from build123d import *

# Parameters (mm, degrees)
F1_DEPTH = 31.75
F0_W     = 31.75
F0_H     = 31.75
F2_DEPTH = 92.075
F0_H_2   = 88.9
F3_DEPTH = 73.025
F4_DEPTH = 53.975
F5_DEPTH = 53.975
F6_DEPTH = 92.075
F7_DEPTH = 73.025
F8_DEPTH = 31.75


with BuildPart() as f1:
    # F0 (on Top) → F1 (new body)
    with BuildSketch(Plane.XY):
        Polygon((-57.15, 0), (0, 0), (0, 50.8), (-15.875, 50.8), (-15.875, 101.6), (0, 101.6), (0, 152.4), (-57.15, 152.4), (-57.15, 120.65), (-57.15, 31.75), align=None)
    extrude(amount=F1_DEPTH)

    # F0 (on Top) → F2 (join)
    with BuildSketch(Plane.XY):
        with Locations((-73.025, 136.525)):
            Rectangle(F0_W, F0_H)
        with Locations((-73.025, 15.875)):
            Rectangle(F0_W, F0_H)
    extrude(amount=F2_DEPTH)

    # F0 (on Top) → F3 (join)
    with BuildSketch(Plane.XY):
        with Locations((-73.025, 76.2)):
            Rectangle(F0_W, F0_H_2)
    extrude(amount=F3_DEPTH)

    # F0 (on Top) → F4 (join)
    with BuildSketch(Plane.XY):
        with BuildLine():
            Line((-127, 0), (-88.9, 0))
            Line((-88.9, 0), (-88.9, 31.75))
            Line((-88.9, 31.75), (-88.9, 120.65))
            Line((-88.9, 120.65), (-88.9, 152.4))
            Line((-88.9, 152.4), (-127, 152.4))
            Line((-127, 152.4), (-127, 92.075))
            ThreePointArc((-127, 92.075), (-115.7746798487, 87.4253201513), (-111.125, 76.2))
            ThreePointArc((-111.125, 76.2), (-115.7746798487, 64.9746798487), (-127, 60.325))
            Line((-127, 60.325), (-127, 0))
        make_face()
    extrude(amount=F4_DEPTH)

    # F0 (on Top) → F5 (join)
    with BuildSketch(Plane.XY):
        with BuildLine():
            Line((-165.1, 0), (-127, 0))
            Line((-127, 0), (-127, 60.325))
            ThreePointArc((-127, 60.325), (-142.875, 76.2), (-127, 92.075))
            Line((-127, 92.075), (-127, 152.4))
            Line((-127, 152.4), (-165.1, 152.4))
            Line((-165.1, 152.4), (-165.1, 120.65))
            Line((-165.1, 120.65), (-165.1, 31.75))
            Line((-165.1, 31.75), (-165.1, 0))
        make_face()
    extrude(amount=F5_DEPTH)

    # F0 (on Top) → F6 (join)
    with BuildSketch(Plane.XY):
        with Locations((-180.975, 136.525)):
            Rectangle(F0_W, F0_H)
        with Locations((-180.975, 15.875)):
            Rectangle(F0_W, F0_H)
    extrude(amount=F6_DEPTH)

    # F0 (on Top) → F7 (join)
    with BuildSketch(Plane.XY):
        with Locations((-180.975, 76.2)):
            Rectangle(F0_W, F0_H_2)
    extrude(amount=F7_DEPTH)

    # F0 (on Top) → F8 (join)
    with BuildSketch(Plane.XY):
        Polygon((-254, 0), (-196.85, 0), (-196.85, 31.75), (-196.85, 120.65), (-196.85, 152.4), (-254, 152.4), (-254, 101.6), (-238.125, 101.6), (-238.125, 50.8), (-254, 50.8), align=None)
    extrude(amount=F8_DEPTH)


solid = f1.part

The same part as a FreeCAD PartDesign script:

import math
import FreeCAD as App
import Part
import Sketcher
from FreeCAD import Vector
Q = App.Units.Quantity

doc = App.newDocument("Part")
body = doc.addObject("PartDesign::Body", "Body")

sketch1 = body.newObject("Sketcher::SketchObject", "Sketch")
sketch1.AttachmentSupport = (doc.getObject("XY_Plane"), [""])
sketch1.MapMode = "FlatFace"
sketch1.addGeometry([
    Part.LineSegment(Vector(-57, 0, 0), Vector(0, 0, 0)),
    Part.LineSegment(Vector(0, 0, 0), Vector(0, 51, 0)),
    Part.LineSegment(Vector(0, 51, 0), Vector(-16, 51, 0)),
    Part.LineSegment(Vector(-16, 51, 0), Vector(-16, 102, 0)),
    Part.LineSegment(Vector(-16, 102, 0), Vector(0, 102, 0)),
    Part.LineSegment(Vector(0, 102, 0), Vector(0, 152, 0)),
    Part.LineSegment(Vector(0, 152, 0), Vector(-57, 152, 0)),
    Part.LineSegment(Vector(-57, 152, 0), Vector(-57, 0, 0)),
], False)
sketch1.addConstraint([
    Sketcher.Constraint("Coincident", 0, 2, 1, 1),
    Sketcher.Constraint("Coincident", 1, 2, 2, 1),
    Sketcher.Constraint("Coincident", 2, 2, 3, 1),
    Sketcher.Constraint("Coincident", 3, 2, 4, 1),
    Sketcher.Constraint("Coincident", 4, 2, 5, 1),
    Sketcher.Constraint("Coincident", 5, 2, 6, 1),
    Sketcher.Constraint("Coincident", 6, 2, 7, 1),
    Sketcher.Constraint("Coincident", 7, 2, 0, 1),
    Sketcher.Constraint("Horizontal", 0),
    Sketcher.Constraint("Vertical", 1),
    Sketcher.Constraint("Horizontal", 2),
    Sketcher.Constraint("Vertical", 3),
    Sketcher.Constraint("Horizontal", 4),
    Sketcher.Constraint("Vertical", 5),
    Sketcher.Constraint("Horizontal", 6),
    Sketcher.Constraint("Vertical", 7),
    Sketcher.Constraint("Coincident", 0, 2, -1, 1),
    Sketcher.Constraint("PointOnObject", 4, 2, -2),
    Sketcher.Constraint("Equal", 1, 3),
    Sketcher.Constraint("Equal", 3, 5),
    Sketcher.Constraint("DistanceY", 1, 1, 1, 2, Q("2 in")),
    Sketcher.Constraint("DistanceX", 0, 1, 0, 2, Q("2.25 in")),
    Sketcher.Constraint("DistanceX", 2, 2, 2, 1, Q("0.625 in")),
])
pad1 = body.newObject("PartDesign::Pad", "Pad")
pad1.Profile = sketch1
pad1.Length = Q("1.25 in")

sketch2 = body.newObject("Sketcher::SketchObject", "Sketch001")
sketch2.AttachmentSupport = (doc.getObject("XY_Plane"), [""])
sketch2.MapMode = "FlatFace"
sketch2.addGeometry([
    Part.LineSegment(Vector(-89, 152, 0), Vector(-89, 121, 0)),
    Part.LineSegment(Vector(-89, 121, 0), Vector(-57, 121, 0)),
    Part.LineSegment(Vector(-57, 121, 0), Vector(-57, 152, 0)),
    Part.LineSegment(Vector(-57, 152, 0), Vector(-89, 152, 0)),
    Part.LineSegment(Vector(-89, 32, 0), Vector(-89, 0, 0)),
    Part.LineSegment(Vector(-89, 0, 0), Vector(-57, 0, 0)),
    Part.LineSegment(Vector(-57, 0, 0), Vector(-57, 32, 0)),
    Part.LineSegment(Vector(-57, 32, 0), Vector(-89, 32, 0)),
], False)
sketch2.addConstraint([
    Sketcher.Constraint("Coincident", 0, 2, 1, 1),
    Sketcher.Constraint("Coincident", 1, 2, 2, 1),
    Sketcher.Constraint("Coincident", 2, 2, 3, 1),
    Sketcher.Constraint("Coincident", 3, 2, 0, 1),
    Sketcher.Constraint("Coincident", 4, 2, 5, 1),
    Sketcher.Constraint("Coincident", 5, 2, 6, 1),
    Sketcher.Constraint("Coincident", 6, 2, 7, 1),
    Sketcher.Constraint("Coincident", 7, 2, 4, 1),
    Sketcher.Constraint("Vertical", 0),
    Sketcher.Constraint("Horizontal", 1),
    Sketcher.Constraint("Vertical", 2),
    Sketcher.Constraint("Horizontal", 3),
    Sketcher.Constraint("Vertical", 4),
    Sketcher.Constraint("Horizontal", 5),
    Sketcher.Constraint("Vertical", 6),
    Sketcher.Constraint("Horizontal", 7),
    Sketcher.Constraint("PointOnObject", 4, 2, -1),
    Sketcher.Constraint("Vertical", 3, 2, 4, 2),
    Sketcher.Constraint("Vertical", 2, 2, 5, 2),
    Sketcher.Constraint("Equal", 7, 0),
    Sketcher.Constraint("Equal", 2, 4),
    Sketcher.Constraint("DistanceY", -1, 1, 2, 2, Q("6 in")),
    Sketcher.Constraint("DistanceX", 1, 1, 1, 2, Q("1.25 in")),
    Sketcher.Constraint("DistanceX", 0, 2, -1, 1, Q("3.5 in")),
])
pad2 = body.newObject("PartDesign::Pad", "Pad001")
pad2.Profile = sketch2
pad2.Length = Q("3.625 in")

sketch3 = body.newObject("Sketcher::SketchObject", "Sketch002")
sketch3.AttachmentSupport = (doc.getObject("XY_Plane"), [""])
sketch3.MapMode = "FlatFace"
sketch3.addGeometry([
    Part.LineSegment(Vector(-89, 121, 0), Vector(-89, 32, 0)),
    Part.LineSegment(Vector(-89, 32, 0), Vector(-57, 32, 0)),
    Part.LineSegment(Vector(-57, 32, 0), Vector(-57, 121, 0)),
    Part.LineSegment(Vector(-57, 121, 0), Vector(-89, 121, 0)),
], False)
sketch3.addConstraint([
    Sketcher.Constraint("Coincident", 0, 2, 1, 1),
    Sketcher.Constraint("Coincident", 1, 2, 2, 1),
    Sketcher.Constraint("Coincident", 2, 2, 3, 1),
    Sketcher.Constraint("Coincident", 3, 2, 0, 1),
    Sketcher.Constraint("Vertical", 0),
    Sketcher.Constraint("Horizontal", 1),
    Sketcher.Constraint("Vertical", 2),
    Sketcher.Constraint("Horizontal", 3),
    Sketcher.Constraint("DistanceY", 0, 2, 0, 1, Q("3.5 in")),
    Sketcher.Constraint("DistanceX", 1, 1, 1, 2, Q("1.25 in")),
    Sketcher.Constraint("DistanceX", 0, 2, -1, 1, Q("3.5 in")),
    Sketcher.Constraint("DistanceY", -1, 1, 0, 2, Q("1.25 in")),
])
pad3 = body.newObject("PartDesign::Pad", "Pad002")
pad3.Profile = sketch3
pad3.Length = Q("2.875 in")

sketch4 = body.newObject("Sketcher::SketchObject", "Sketch003")
sketch4.AttachmentSupport = (doc.getObject("XY_Plane"), [""])
sketch4.MapMode = "FlatFace"
sketch4.addGeometry([
    Part.LineSegment(Vector(-127, 0, 0), Vector(-89, 0, 0)),
    Part.LineSegment(Vector(-89, 0, 0), Vector(-89, 152, 0)),
    Part.LineSegment(Vector(-89, 152, 0), Vector(-127, 152, 0)),
    Part.LineSegment(Vector(-127, 152, 0), Vector(-127, 92, 0)),
    Part.ArcOfCircle(Part.Circle(Vector(-127, 76, 0), Vector(0, 0, 1), 16), math.radians(0), math.radians(90)),
    Part.ArcOfCircle(Part.Circle(Vector(-127, 76, 0), Vector(0, 0, 1), 16), math.radians(-90), math.radians(0)),
    Part.LineSegment(Vector(-127, 60, 0), Vector(-127, 0, 0)),
], False)
sketch4.addConstraint([
    Sketcher.Constraint("Coincident", 0, 2, 1, 1),
    Sketcher.Constraint("Coincident", 1, 2, 2, 1),
    Sketcher.Constraint("Coincident", 2, 2, 3, 1),
    Sketcher.Constraint("Coincident", 3, 2, 4, 2),
    Sketcher.Constraint("Tangent", 4, 1, 5, 2),
    Sketcher.Constraint("Coincident", 5, 1, 6, 1),
    Sketcher.Constraint("Coincident", 6, 2, 0, 1),
    Sketcher.Constraint("Horizontal", 0),
    Sketcher.Constraint("Vertical", 1),
    Sketcher.Constraint("Horizontal", 2),
    Sketcher.Constraint("Vertical", 3),
    Sketcher.Constraint("Vertical", 6),
    Sketcher.Constraint("Equal", 4, 5),
    Sketcher.Constraint("PointOnObject", 0, 2, -1),
    Sketcher.Constraint("Horizontal", 5, 3, 4, 1),
    Sketcher.Constraint("Vertical", 5, 3, 2, 2),
    Sketcher.Constraint("Vertical", 3, 2, 5, 1),
    Sketcher.Constraint("Equal", 3, 6),
    Sketcher.Constraint("DistanceY", 1, 1, 1, 2, Q("6 in")),
    Sketcher.Constraint("DistanceX", 0, 1, 0, 2, Q("1.5 in")),
    Sketcher.Constraint("DistanceX", 4, 3, -1, 1, Q("5 in")),
    Sketcher.Constraint("Radius", 4, Q("0.625 in")),
])
pad4 = body.newObject("PartDesign::Pad", "Pad003")
pad4.Profile = sketch4
pad4.Length = Q("2.125 in")

sketch5 = body.newObject("Sketcher::SketchObject", "Sketch004")
sketch5.AttachmentSupport = (doc.getObject("XY_Plane"), [""])
sketch5.MapMode = "FlatFace"
sketch5.addGeometry([
    Part.LineSegment(Vector(-165, 0, 0), Vector(-127, 0, 0)),
    Part.LineSegment(Vector(-127, 0, 0), Vector(-127, 60, 0)),
    Part.ArcOfCircle(Part.Circle(Vector(-127, 76, 0), Vector(0, 0, 1), 16), math.radians(90), math.radians(270)),
    Part.LineSegment(Vector(-127, 92, 0), Vector(-127, 152, 0)),
    Part.LineSegment(Vector(-127, 152, 0), Vector(-165, 152, 0)),
    Part.LineSegment(Vector(-165, 152, 0), Vector(-165, 0, 0)),
], False)
sketch5.addConstraint([
    Sketcher.Constraint("Coincident", 0, 2, 1, 1),
    Sketcher.Constraint("Coincident", 1, 2, 2, 2),
    Sketcher.Constraint("Coincident", 2, 1, 3, 1),
    Sketcher.Constraint("Coincident", 3, 2, 4, 1),
    Sketcher.Constraint("Coincident", 4, 2, 5, 1),
    Sketcher.Constraint("Coincident", 5, 2, 0, 1),
    Sketcher.Constraint("Horizontal", 0),
    Sketcher.Constraint("Vertical", 1),
    Sketcher.Constraint("Vertical", 3),
    Sketcher.Constraint("Horizontal", 4),
    Sketcher.Constraint("Vertical", 5),
    Sketcher.Constraint("PointOnObject", 0, 2, -1),
    Sketcher.Constraint("Vertical", 2, 3, 0, 2),
    Sketcher.Constraint("Vertical", 1, 2, 2, 1),
    Sketcher.Constraint("Equal", 1, 3),
    Sketcher.Constraint("DistanceY", 5, 2, 5, 1, Q("6 in")),
    Sketcher.Constraint("DistanceX", 0, 1, 0, 2, Q("1.5 in")),
    Sketcher.Constraint("DistanceX", 2, 3, -1, 1, Q("5 in")),
    Sketcher.Constraint("Radius", 2, Q("0.625 in")),
])
pad5 = body.newObject("PartDesign::Pad", "Pad004")
pad5.Profile = sketch5
pad5.Length = Q("2.125 in")

sketch6 = body.newObject("Sketcher::SketchObject", "Sketch005")
sketch6.AttachmentSupport = (doc.getObject("XY_Plane"), [""])
sketch6.MapMode = "FlatFace"
sketch6.addGeometry([
    Part.LineSegment(Vector(-197, 152, 0), Vector(-197, 121, 0)),
    Part.LineSegment(Vector(-197, 121, 0), Vector(-165, 121, 0)),
    Part.LineSegment(Vector(-165, 121, 0), Vector(-165, 152, 0)),
    Part.LineSegment(Vector(-165, 152, 0), Vector(-197, 152, 0)),
    Part.LineSegment(Vector(-197, 32, 0), Vector(-197, 0, 0)),
    Part.LineSegment(Vector(-197, 0, 0), Vector(-165, 0, 0)),
    Part.LineSegment(Vector(-165, 0, 0), Vector(-165, 32, 0)),
    Part.LineSegment(Vector(-165, 32, 0), Vector(-197, 32, 0)),
], False)
sketch6.addConstraint([
    Sketcher.Constraint("Coincident", 0, 2, 1, 1),
    Sketcher.Constraint("Coincident", 1, 2, 2, 1),
    Sketcher.Constraint("Coincident", 2, 2, 3, 1),
    Sketcher.Constraint("Coincident", 3, 2, 0, 1),
    Sketcher.Constraint("Coincident", 4, 2, 5, 1),
    Sketcher.Constraint("Coincident", 5, 2, 6, 1),
    Sketcher.Constraint("Coincident", 6, 2, 7, 1),
    Sketcher.Constraint("Coincident", 7, 2, 4, 1),
    Sketcher.Constraint("Vertical", 0),
    Sketcher.Constraint("Horizontal", 1),
    Sketcher.Constraint("Vertical", 2),
    Sketcher.Constraint("Horizontal", 3),
    Sketcher.Constraint("Vertical", 4),
    Sketcher.Constraint("Horizontal", 5),
    Sketcher.Constraint("Vertical", 6),
    Sketcher.Constraint("Horizontal", 7),
    Sketcher.Constraint("PointOnObject", 4, 2, -1),
    Sketcher.Constraint("Vertical", 3, 2, 4, 2),
    Sketcher.Constraint("Vertical", 2, 2, 5, 2),
    Sketcher.Constraint("Equal", 7, 0),
    Sketcher.Constraint("Equal", 2, 4),
    Sketcher.Constraint("DistanceY", -1, 1, 2, 2, Q("6 in")),
    Sketcher.Constraint("DistanceX", 1, 1, 1, 2, Q("1.25 in")),
    Sketcher.Constraint("DistanceX", 1, 2, -1, 1, Q("6.5 in")),
])
pad6 = body.newObject("PartDesign::Pad", "Pad005")
pad6.Profile = sketch6
pad6.Length = Q("3.625 in")

sketch7 = body.newObject("Sketcher::SketchObject", "Sketch006")
sketch7.AttachmentSupport = (doc.getObject("XY_Plane"), [""])
sketch7.MapMode = "FlatFace"
sketch7.addGeometry([
    Part.LineSegment(Vector(-197, 121, 0), Vector(-197, 32, 0)),
    Part.LineSegment(Vector(-197, 32, 0), Vector(-165, 32, 0)),
    Part.LineSegment(Vector(-165, 32, 0), Vector(-165, 121, 0)),
    Part.LineSegment(Vector(-165, 121, 0), Vector(-197, 121, 0)),
], False)
sketch7.addConstraint([
    Sketcher.Constraint("Coincident", 0, 2, 1, 1),
    Sketcher.Constraint("Coincident", 1, 2, 2, 1),
    Sketcher.Constraint("Coincident", 2, 2, 3, 1),
    Sketcher.Constraint("Coincident", 3, 2, 0, 1),
    Sketcher.Constraint("Vertical", 0),
    Sketcher.Constraint("Horizontal", 1),
    Sketcher.Constraint("Vertical", 2),
    Sketcher.Constraint("Horizontal", 3),
    Sketcher.Constraint("DistanceY", 0, 2, 0, 1, Q("3.5 in")),
    Sketcher.Constraint("DistanceX", 1, 1, 1, 2, Q("1.25 in")),
    Sketcher.Constraint("DistanceX", 1, 2, -1, 1, Q("6.5 in")),
    Sketcher.Constraint("DistanceY", -1, 1, 0, 2, Q("1.25 in")),
])
pad7 = body.newObject("PartDesign::Pad", "Pad006")
pad7.Profile = sketch7
pad7.Length = Q("2.875 in")

sketch8 = body.newObject("Sketcher::SketchObject", "Sketch007")
sketch8.AttachmentSupport = (doc.getObject("XY_Plane"), [""])
sketch8.MapMode = "FlatFace"
sketch8.addGeometry([
    Part.LineSegment(Vector(-254, 0, 0), Vector(-197, 0, 0)),
    Part.LineSegment(Vector(-197, 0, 0), Vector(-197, 152, 0)),
    Part.LineSegment(Vector(-197, 152, 0), Vector(-254, 152, 0)),
    Part.LineSegment(Vector(-254, 152, 0), Vector(-254, 102, 0)),
    Part.LineSegment(Vector(-254, 102, 0), Vector(-238, 102, 0)),
    Part.LineSegment(Vector(-238, 102, 0), Vector(-238, 51, 0)),
    Part.LineSegment(Vector(-238, 51, 0), Vector(-254, 51, 0)),
    Part.LineSegment(Vector(-254, 51, 0), Vector(-254, 0, 0)),
], False)
sketch8.addConstraint([
    Sketcher.Constraint("Coincident", 0, 2, 1, 1),
    Sketcher.Constraint("Coincident", 1, 2, 2, 1),
    Sketcher.Constraint("Coincident", 2, 2, 3, 1),
    Sketcher.Constraint("Coincident", 3, 2, 4, 1),
    Sketcher.Constraint("Coincident", 4, 2, 5, 1),
    Sketcher.Constraint("Coincident", 5, 2, 6, 1),
    Sketcher.Constraint("Coincident", 6, 2, 7, 1),
    Sketcher.Constraint("Coincident", 7, 2, 0, 1),
    Sketcher.Constraint("Horizontal", 0),
    Sketcher.Constraint("Vertical", 1),
    Sketcher.Constraint("Horizontal", 2),
    Sketcher.Constraint("Vertical", 3),
    Sketcher.Constraint("Horizontal", 4),
    Sketcher.Constraint("Vertical", 5),
    Sketcher.Constraint("Horizontal", 6),
    Sketcher.Constraint("Vertical", 7),
    Sketcher.Constraint("PointOnObject", 0, 2, -1),
    Sketcher.Constraint("Vertical", 3, 2, 6, 2),
    Sketcher.Constraint("Equal", 3, 5),
    Sketcher.Constraint("Equal", 5, 7),
    Sketcher.Constraint("DistanceY", 1, 1, 1, 2, Q("6 in")),
    Sketcher.Constraint("DistanceX", 2, 2, -1, 1, Q("10 in")),
    Sketcher.Constraint("DistanceX", 0, 1, 0, 2, Q("2.25 in")),
    Sketcher.Constraint("DistanceX", 4, 1, 4, 2, Q("0.625 in")),
])
pad8 = body.newObject("PartDesign::Pad", "Pad007")
pad8.Profile = sketch8
pad8.Length = Q("1.25 in")

doc.recompute()
